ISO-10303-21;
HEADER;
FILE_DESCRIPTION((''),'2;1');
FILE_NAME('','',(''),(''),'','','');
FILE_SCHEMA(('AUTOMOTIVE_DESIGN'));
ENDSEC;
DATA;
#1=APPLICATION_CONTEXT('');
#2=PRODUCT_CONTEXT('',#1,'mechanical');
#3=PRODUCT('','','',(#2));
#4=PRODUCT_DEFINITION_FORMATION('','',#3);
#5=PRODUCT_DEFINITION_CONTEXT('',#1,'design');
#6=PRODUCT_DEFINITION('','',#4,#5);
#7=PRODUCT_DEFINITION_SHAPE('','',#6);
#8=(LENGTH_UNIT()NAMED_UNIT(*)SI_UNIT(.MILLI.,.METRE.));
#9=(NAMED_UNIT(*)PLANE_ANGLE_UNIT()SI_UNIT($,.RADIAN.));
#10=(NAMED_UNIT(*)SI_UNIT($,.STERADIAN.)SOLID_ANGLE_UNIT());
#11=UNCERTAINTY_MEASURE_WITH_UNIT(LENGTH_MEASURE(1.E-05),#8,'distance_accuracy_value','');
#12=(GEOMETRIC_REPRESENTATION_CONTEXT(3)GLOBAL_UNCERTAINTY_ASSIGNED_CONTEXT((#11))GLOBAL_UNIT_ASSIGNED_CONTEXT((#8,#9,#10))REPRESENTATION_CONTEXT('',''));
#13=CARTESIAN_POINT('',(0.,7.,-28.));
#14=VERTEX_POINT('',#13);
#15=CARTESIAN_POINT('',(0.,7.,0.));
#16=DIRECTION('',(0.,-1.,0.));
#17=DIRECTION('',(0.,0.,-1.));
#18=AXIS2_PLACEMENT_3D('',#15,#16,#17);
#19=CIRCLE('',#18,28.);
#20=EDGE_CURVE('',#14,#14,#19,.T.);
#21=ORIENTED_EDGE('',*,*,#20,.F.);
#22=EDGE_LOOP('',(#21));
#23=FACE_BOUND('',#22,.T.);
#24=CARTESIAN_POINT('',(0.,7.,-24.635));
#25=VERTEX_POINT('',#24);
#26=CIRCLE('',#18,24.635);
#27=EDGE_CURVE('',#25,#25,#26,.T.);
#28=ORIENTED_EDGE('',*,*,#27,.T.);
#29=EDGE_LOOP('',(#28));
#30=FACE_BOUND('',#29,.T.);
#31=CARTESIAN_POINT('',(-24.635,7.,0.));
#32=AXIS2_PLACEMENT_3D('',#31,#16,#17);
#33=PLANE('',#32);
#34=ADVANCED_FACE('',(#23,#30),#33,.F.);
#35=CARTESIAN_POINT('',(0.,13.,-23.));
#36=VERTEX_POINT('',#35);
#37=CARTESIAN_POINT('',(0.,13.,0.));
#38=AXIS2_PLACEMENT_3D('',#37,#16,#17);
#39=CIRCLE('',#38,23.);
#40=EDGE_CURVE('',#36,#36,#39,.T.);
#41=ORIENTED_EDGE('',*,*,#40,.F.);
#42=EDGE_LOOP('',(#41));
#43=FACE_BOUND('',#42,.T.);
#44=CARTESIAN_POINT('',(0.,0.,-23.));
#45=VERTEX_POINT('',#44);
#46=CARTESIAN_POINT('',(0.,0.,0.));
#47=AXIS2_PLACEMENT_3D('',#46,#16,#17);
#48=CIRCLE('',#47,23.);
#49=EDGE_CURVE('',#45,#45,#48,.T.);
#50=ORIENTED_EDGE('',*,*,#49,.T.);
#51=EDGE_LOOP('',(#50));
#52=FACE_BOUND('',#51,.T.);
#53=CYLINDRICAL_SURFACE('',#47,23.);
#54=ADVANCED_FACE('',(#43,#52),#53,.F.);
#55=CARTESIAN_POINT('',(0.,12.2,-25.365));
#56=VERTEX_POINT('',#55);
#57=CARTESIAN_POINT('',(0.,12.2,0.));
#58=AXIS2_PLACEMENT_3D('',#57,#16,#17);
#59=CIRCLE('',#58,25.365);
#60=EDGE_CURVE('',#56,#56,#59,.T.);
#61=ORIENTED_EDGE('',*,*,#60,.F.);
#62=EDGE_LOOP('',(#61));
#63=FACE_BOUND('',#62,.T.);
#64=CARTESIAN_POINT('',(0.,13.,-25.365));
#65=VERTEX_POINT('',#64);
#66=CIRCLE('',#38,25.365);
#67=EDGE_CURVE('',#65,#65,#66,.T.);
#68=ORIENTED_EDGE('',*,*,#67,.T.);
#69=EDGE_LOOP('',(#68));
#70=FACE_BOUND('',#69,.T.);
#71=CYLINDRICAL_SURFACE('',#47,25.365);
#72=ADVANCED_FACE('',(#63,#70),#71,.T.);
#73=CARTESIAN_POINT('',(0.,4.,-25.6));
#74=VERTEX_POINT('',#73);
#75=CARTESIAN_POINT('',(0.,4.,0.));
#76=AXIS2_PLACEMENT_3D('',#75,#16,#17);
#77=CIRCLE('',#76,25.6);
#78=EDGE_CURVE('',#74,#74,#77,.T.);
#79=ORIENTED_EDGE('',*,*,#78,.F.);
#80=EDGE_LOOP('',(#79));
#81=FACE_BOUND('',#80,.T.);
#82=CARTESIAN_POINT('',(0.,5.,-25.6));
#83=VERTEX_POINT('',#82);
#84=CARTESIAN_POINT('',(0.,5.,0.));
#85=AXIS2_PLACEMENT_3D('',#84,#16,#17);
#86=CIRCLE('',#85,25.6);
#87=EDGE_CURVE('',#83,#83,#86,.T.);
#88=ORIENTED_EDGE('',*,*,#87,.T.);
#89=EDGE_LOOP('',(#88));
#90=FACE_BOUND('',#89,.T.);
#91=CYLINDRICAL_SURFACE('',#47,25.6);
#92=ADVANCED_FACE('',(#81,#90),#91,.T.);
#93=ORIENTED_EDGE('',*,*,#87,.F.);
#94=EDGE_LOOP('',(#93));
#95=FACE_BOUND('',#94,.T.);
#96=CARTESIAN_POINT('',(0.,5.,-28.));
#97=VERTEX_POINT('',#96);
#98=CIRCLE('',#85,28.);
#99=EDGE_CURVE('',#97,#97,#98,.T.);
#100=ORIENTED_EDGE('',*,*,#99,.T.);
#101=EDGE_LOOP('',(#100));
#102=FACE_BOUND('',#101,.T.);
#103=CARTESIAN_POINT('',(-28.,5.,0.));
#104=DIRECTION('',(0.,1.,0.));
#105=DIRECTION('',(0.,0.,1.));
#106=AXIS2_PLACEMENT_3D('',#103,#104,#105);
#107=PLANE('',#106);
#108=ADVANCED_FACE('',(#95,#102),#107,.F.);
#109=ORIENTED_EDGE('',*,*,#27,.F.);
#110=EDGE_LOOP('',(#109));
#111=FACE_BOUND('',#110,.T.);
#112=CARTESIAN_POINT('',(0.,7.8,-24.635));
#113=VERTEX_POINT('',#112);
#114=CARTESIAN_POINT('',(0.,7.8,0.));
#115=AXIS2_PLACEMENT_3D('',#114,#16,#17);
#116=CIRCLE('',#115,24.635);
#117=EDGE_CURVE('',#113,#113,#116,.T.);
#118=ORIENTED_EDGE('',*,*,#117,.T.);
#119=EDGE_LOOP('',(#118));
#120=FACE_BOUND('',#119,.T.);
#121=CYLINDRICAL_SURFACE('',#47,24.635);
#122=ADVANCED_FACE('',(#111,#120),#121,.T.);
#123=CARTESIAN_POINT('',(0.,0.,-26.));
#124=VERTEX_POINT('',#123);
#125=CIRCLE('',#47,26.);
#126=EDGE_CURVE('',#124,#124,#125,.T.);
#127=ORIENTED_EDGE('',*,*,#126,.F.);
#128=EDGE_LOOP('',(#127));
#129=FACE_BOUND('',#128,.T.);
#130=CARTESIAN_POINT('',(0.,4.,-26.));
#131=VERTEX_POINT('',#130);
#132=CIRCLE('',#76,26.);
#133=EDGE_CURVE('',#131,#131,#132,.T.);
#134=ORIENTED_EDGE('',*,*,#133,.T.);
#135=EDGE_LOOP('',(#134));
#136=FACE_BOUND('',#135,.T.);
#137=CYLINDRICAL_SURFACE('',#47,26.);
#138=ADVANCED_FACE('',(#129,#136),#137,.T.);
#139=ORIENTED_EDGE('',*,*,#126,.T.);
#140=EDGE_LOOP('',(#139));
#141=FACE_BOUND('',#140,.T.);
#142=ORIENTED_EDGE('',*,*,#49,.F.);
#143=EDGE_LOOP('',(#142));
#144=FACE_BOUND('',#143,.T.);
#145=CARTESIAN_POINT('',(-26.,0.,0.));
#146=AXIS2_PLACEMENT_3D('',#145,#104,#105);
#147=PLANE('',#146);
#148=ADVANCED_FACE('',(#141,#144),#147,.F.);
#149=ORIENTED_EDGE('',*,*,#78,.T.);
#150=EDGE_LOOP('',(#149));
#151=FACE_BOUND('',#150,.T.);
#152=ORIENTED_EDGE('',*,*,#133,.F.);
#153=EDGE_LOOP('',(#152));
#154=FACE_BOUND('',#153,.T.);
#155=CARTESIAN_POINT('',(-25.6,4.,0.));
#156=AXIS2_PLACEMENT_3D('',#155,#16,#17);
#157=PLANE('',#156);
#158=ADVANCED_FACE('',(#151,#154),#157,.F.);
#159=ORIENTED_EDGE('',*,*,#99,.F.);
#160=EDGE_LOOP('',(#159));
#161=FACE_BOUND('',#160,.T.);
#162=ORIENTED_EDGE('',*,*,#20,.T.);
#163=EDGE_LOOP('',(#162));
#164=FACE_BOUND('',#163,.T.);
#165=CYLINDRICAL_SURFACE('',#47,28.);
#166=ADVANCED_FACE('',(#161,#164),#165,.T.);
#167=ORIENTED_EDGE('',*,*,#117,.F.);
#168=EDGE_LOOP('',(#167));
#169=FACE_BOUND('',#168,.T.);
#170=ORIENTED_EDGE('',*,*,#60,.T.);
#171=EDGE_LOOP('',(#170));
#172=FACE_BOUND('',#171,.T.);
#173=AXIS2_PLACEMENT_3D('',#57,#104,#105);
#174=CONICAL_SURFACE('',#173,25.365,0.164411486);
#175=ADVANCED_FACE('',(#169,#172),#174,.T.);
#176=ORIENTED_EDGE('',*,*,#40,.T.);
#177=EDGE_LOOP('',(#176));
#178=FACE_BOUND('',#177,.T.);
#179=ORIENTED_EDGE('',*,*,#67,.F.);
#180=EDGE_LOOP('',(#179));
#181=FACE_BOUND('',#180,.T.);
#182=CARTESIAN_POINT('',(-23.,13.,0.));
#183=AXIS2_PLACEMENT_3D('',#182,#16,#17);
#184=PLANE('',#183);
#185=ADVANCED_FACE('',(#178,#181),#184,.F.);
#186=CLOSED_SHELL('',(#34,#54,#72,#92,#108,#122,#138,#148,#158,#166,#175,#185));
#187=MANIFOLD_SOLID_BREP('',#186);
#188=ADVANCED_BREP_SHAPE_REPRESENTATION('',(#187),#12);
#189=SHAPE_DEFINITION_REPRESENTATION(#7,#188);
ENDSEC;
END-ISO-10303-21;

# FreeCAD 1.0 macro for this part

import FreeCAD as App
import Part
import Sketcher

V = App.Vector
Q = App.Units.Quantity

doc = App.newDocument("Part")
body = doc.addObject("PartDesign::Body", "Body")

# Sketch on XY plane
sketch1 = body.newObject("Sketcher::SketchObject", "Sketch")
sketch1.AttachmentSupport = (doc.getObject("XY_Plane"), [""])
sketch1.MapMode = "FlatFace"
sketch1.addGeometry([
    Part.LineSegment(V(-23, 0, 0), V(-23, 13, 0)),  # 0
    Part.LineSegment(V(-23, 13, 0), V(-25.36, 13, 0)),  # 1
    Part.LineSegment(V(-25.36, 13, 0), V(-25.36, 12.2, 0)),  # 2
    Part.LineSegment(V(-25.36, 12.2, 0), V(-24.64, 7.8, 0)),  # 3
    Part.LineSegment(V(-24.64, 7.8, 0), V(-24.64, 7, 0)),  # 4
    Part.LineSegment(V(-24.64, 7, 0), V(-28, 7, 0)),  # 5
    Part.LineSegment(V(-28, 7, 0), V(-28, 5, 0)),  # 6
    Part.LineSegment(V(-28, 5, 0), V(-25.6, 5, 0)),  # 7
    Part.LineSegment(V(-25.6, 5, 0), V(-25.6, 4, 0)),  # 8
    Part.LineSegment(V(-25.6, 4, 0), V(-26, 4, 0)),  # 9
    Part.LineSegment(V(-26, 4, 0), V(-26, 0, 0)),  # 10
    Part.LineSegment(V(-26, 0, 0), V(-23, 0, 0)),  # 11
], False)
sketch1.addConstraint([
    Sketcher.Constraint("Coincident", 0, 2, 1, 1),
    Sketcher.Constraint("Coincident", 1, 2, 2, 1),
    Sketcher.Constraint("Coincident", 2, 2, 3, 1),
    Sketcher.Constraint("Coincident", 3, 2, 4, 1),
    Sketcher.Constraint("Coincident", 4, 2, 5, 1),
    Sketcher.Constraint("Coincident", 5, 2, 6, 1),
    Sketcher.Constraint("Coincident", 6, 2, 7, 1),
    Sketcher.Constraint("Coincident", 7, 2, 8, 1),
    Sketcher.Constraint("Coincident", 8, 2, 9, 1),
    Sketcher.Constraint("Coincident", 9, 2, 10, 1),
    Sketcher.Constraint("Coincident", 10, 2, 11, 1),
    Sketcher.Constraint("Coincident", 11, 2, 0, 1),
    Sketcher.Constraint("Vertical", 0),
    Sketcher.Constraint("Horizontal", 1),
    Sketcher.Constraint("Vertical", 2),
    Sketcher.Constraint("Vertical", 4),
    Sketcher.Constraint("Horizontal", 5),
    Sketcher.Constraint("Vertical", 6),
    Sketcher.Constraint("Horizontal", 7),
    Sketcher.Constraint("Vertical", 8),
    Sketcher.Constraint("Horizontal", 9),
    Sketcher.Constraint("Vertical", 10),
    Sketcher.Constraint("Horizontal", 11),
    Sketcher.Constraint("PointOnObject", 10, 2, -1),
    Sketcher.Constraint("Equal", 2, 4),
    Sketcher.Constraint("DistanceX", 11, 1, 11, 2, Q("3 mm")),
    Sketcher.Constraint("DistanceY", 0, 1, 0, 2, Q("13 mm")),
    Sketcher.Constraint("DistanceY", 6, 2, 6, 1, Q("2 mm")),
    Sketcher.Constraint("DistanceY", 8, 2, 8, 1, Q("1 mm")),
    Sketcher.Constraint("DistanceY", 10, 2, 10, 1, Q("4 mm")),
    Sketcher.Constraint("DistanceX", 7, 1, 7, 2, Q("2.4 mm")),
    Sketcher.Constraint("DistanceX", 9, 2, 9, 1, Q("0.4 mm")),
    Sketcher.Constraint("DistanceY", 2, 2, 2, 1, Q("0.8 mm")),
    Sketcher.Constraint("DistanceX", 0, 2, -1, 1, Q("23 mm")),
    Sketcher.Constraint("DistanceX", 1, 2, 1, 1, Q("2.365 mm")),
    Sketcher.Constraint("DistanceX", 5, 2, 5, 1, Q("3.365 mm")),
])
revolution = body.newObject("PartDesign::Revolution", "Revolution")
revolution.Profile = sketch1
revolution.ReferenceAxis = (sketch1, ["V_Axis"])
revolution.Angle = 360

doc.recompute()
